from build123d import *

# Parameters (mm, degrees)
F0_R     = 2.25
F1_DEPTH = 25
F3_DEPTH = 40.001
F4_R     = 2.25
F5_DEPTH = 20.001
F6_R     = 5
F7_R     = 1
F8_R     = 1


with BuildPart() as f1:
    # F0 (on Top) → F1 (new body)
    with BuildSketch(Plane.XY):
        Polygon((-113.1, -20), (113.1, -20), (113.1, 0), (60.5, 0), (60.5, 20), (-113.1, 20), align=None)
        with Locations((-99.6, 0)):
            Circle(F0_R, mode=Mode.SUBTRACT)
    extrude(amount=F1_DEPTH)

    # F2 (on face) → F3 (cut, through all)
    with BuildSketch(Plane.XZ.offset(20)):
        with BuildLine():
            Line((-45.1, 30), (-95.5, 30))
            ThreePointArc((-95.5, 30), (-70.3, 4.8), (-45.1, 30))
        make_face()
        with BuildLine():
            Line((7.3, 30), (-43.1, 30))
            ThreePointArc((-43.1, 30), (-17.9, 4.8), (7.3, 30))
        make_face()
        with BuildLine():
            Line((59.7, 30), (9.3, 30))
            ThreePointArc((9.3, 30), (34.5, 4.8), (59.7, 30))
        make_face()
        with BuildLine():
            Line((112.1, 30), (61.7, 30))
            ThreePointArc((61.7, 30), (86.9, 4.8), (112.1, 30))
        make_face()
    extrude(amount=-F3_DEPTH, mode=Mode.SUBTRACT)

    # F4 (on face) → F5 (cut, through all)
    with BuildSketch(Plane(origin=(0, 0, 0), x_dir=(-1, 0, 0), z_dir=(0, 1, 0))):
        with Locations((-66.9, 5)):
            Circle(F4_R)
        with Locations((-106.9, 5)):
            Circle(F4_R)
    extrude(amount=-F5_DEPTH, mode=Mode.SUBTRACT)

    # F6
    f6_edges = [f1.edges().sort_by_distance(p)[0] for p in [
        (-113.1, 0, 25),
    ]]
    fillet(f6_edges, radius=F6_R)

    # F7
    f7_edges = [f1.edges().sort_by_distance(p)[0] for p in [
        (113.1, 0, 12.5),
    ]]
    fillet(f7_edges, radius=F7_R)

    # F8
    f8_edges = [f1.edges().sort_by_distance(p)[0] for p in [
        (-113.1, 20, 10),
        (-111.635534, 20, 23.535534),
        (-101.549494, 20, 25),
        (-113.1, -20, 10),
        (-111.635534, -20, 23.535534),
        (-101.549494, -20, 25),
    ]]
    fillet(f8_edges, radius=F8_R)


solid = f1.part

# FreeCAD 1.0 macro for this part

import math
import FreeCAD as App
import Part
import Sketcher


def edges_at(feature, points):
    """Names of the edges that pass closest to the given points."""
    edges = feature.Shape.Edges
    near = lambda p: min(range(len(edges)), key=lambda i: edges[i].distToShape(Part.Vertex(*p))[0])
    return sorted({f"Edge{near(p) + 1}" for p in points})

doc = App.newDocument("Part")
params = doc.addObject("Spreadsheet::Sheet", "Params")
for row, (alias, value) in enumerate([
    ("sketch1_diameter", "4.5 mm"),
    ("sketch1_height", "20 mm"),
    ("sketch1_width", "226.2 mm"),
    ("sketch1_width2", "52.6 mm"),
    ("pad1_length", "25 mm"),
    ("sketch2_radius", "25.2 mm"),
    ("sketch3_diameter", "4.5 mm"),
    ("fillet_radius", "5 mm"),
    ("fillet2_radius", "1 mm"),
    ("fillet3_radius", "1 mm"),
], start=1):
    params.set(f"A{row}", alias)
    params.set(f"B{row}", "=" + value)
    params.setAlias(f"B{row}", alias)

body = doc.addObject("PartDesign::Body", "Body")

# Sketch on XY plane
sketch1 = doc.addObject("Sketcher::SketchObject", "Sketch")
body.addObject(sketch1)
sketch1.AttachmentSupport = (doc.XY_Plane, [""])
sketch1.MapMode = "FlatFace"
sketch1.addGeometry([
    Part.LineSegment(App.Vector(-113.1, -20, 0), App.Vector(113.1, -20, 0)),  # 0
    Part.LineSegment(App.Vector(113.1, -20, 0), App.Vector(113.1, 0, 0)),  # 1
    Part.LineSegment(App.Vector(113.1, 0, 0), App.Vector(60.5, 0, 0)),  # 2
    Part.LineSegment(App.Vector(60.5, 0, 0), App.Vector(60.5, 20, 0)),  # 3
    Part.LineSegment(App.Vector(60.5, 20, 0), App.Vector(-113.1, 20, 0)),  # 4
    Part.LineSegment(App.Vector(-113.1, 20, 0), App.Vector(-113.1, -20, 0)),  # 5
    Part.Circle(App.Vector(-99.6, 0, 0), App.Vector(0, 0, 1), 2.25),  # 6
], False)
sketch1.addConstraint([
    Sketcher.Constraint("Coincident", 0, 2, 1, 1),
    Sketcher.Constraint("Coincident", 1, 2, 2, 1),
    Sketcher.Constraint("Coincident", 2, 2, 3, 1),
    Sketcher.Constraint("Coincident", 3, 2, 4, 1),
    Sketcher.Constraint("Coincident", 4, 2, 5, 1),
    Sketcher.Constraint("Coincident", 5, 2, 0, 1),
    Sketcher.Constraint("Horizontal", 0),
    Sketcher.Constraint("Vertical", 1),
    Sketcher.Constraint("Horizontal", 2),
    Sketcher.Constraint("Vertical", 3),
    Sketcher.Constraint("Horizontal", 4),
    Sketcher.Constraint("Vertical", 5),
    Sketcher.Constraint("Symmetric", 0, 2, 4, 2, -1, 1),
    Sketcher.Constraint("PointOnObject", 6, 3, -1),
    Sketcher.Constraint("PointOnObject", 1, 2, -1),
    Sketcher.Constraint("Diameter", 6, 4.5),
    Sketcher.Constraint("DistanceY", 1, 1, 1, 2, 20.0),
    Sketcher.Constraint("DistanceX", 0, 1, 0, 2, 226.2),
    Sketcher.Constraint("DistanceX", 2, 2, 2, 1, 52.6),
    Sketcher.Constraint("DistanceX", 6, 3, -1, 1, 99.6),
])
sketch1.setExpression("Constraints[15]", "Params.sketch1_diameter")
sketch1.setExpression("Constraints[16]", "Params.sketch1_height")
sketch1.setExpression("Constraints[17]", "Params.sketch1_width")
sketch1.setExpression("Constraints[18]", "Params.sketch1_width2")
pad1 = doc.addObject("PartDesign::Pad", "Pad")
body.addObject(pad1)
pad1.Profile = sketch1
pad1.setExpression("Length", "Params.pad1_length")

# Sketch on XZ plane
sketch2 = doc.addObject("Sketcher::SketchObject", "Sketch001")
body.addObject(sketch2)
sketch2.AttachmentSupport = (doc.XZ_Plane, [""])
sketch2.MapMode = "FlatFace"
sketch2.AttachmentOffset = App.Placement(App.Vector(0, 0, 20), App.Rotation())
sketch2.addGeometry([
    Part.LineSegment(App.Vector(-45.1, 30, 0), App.Vector(-95.5, 30, 0)),  # 0
    Part.ArcOfCircle(Part.Circle(App.Vector(-70.3, 30, 0), App.Vector(0, 0, 1), 25.2), math.radians(180), math.radians(360)),  # 1
    Part.LineSegment(App.Vector(7.3, 30, 0), App.Vector(-43.1, 30, 0)),  # 2
    Part.ArcOfCircle(Part.Circle(App.Vector(-17.9, 30, 0), App.Vector(0, 0, 1), 25.2), math.radians(180), math.radians(360)),  # 3
    Part.LineSegment(App.Vector(59.7, 30, 0), App.Vector(9.3, 30, 0)),  # 4
    Part.ArcOfCircle(Part.Circle(App.Vector(34.5, 30, 0), App.Vector(0, 0, 1), 25.2), math.radians(180), math.radians(360)),  # 5
    Part.LineSegment(App.Vector(112.1, 30, 0), App.Vector(61.7, 30, 0)),  # 6
    Part.ArcOfCircle(Part.Circle(App.Vector(86.9, 30, 0), App.Vector(0, 0, 1), 25.2), math.radians(180), math.radians(360)),  # 7
], False)
sketch2.addConstraint([
    Sketcher.Constraint("Coincident", 0, 1, 1, 2),
    Sketcher.Constraint("Coincident", 1, 1, 0, 2),
    Sketcher.Constraint("Coincident", 2, 1, 3, 2),
    Sketcher.Constraint("Coincident", 3, 1, 2, 2),
    Sketcher.Constraint("Coincident", 4, 1, 5, 2),
    Sketcher.Constraint("Coincident", 5, 1, 4, 2),
    Sketcher.Constraint("Coincident", 6, 1, 7, 2),
    Sketcher.Constraint("Coincident", 7, 1, 6, 2),
    Sketcher.Constraint("Horizontal", 0),
    Sketcher.Constraint("Horizontal", 2),
    Sketcher.Constraint("Horizontal", 4),
    Sketcher.Constraint("Horizontal", 6),
    Sketcher.Constraint("Equal", 1, 3),
    Sketcher.Constraint("Equal", 3, 5),
    Sketcher.Constraint("Equal", 5, 7),
    Sketcher.Constraint("Horizontal", 1, 3, 3, 3),
    Sketcher.Constraint("Horizontal", 3, 3, 5, 3),
    Sketcher.Constraint("Horizontal", 5, 3, 7, 3),
    Sketcher.Constraint("Horizontal", 7, 3, 0, 1),
    Sketcher.Constraint("Horizontal", 1, 1, 2, 1),
    Sketcher.Constraint("Horizontal", 3, 1, 4, 1),
    Sketcher.Constraint("Horizontal", 5, 1, 6, 1),
    Sketcher.Constraint("Radius", 1, 25.2),
    Sketcher.Constraint("DistanceY", -1, 1, 1, 3, 30.0),
    Sketcher.Constraint("DistanceX", 0, 1, 7, 3, 132.0),
    Sketcher.Constraint("DistanceX", 1, 1, 5, 3, 130.0),
    Sketcher.Constraint("DistanceX", 0, 1, 3, 1, 2.0),
    Sketcher.Constraint("DistanceX", 1, 3, -1, 1, 70.3),
])
sketch2.setExpression("Constraints[22]", "Params.sketch2_radius")
pocket1 = doc.addObject("PartDesign::Pocket", "Pocket")
body.addObject(pocket1)
pocket1.Profile = sketch2
pocket1.Type = "ThroughAll"

# Sketch on XZ plane
sketch3 = doc.addObject("Sketcher::SketchObject", "Sketch002")
body.addObject(sketch3)
sketch3.AttachmentSupport = (doc.XZ_Plane, [""])
sketch3.MapMode = "FlatFace"
sketch3.addGeometry([
    Part.Circle(App.Vector(66.9, 5, 0), App.Vector(0, 0, 1), 2.25),
    Part.Circle(App.Vector(106.9, 5, 0), App.Vector(0, 0, 1), 2.25),
], False)
sketch3.addConstraint([
    Sketcher.Constraint("Equal", 0, 1),
    Sketcher.Constraint("Horizontal", 0, 3, 1, 3),
    Sketcher.Constraint("Diameter", 0, 4.5),
    Sketcher.Constraint("DistanceY", -1, 1, 0, 3, 5.0),
    Sketcher.Constraint("DistanceX", 0, 3, 1, 3, 40.0),
    Sketcher.Constraint("DistanceX", -1, 1, 0, 3, 66.9),
])
sketch3.setExpression("Constraints[2]", "Params.sketch3_diameter")
pocket2 = doc.addObject("PartDesign::Pocket", "Pocket001")
body.addObject(pocket2)
pocket2.Profile = sketch3
pocket2.Type = "ThroughAll"
pocket2.Reversed = True
doc.recompute()

fillet = doc.addObject("PartDesign::Fillet", "Fillet")
body.addObject(fillet)
fillet.Base = (pocket2, edges_at(pocket2, [(-113.1, 0, 25)]))
fillet.setExpression("Radius", "Params.fillet_radius")
doc.recompute()

fillet2 = doc.addObject("PartDesign::Fillet", "Fillet001")
body.addObject(fillet2)
fillet2.Base = (fillet, edges_at(fillet, [(113.1, 0, 12.5)]))
fillet2.setExpression("Radius", "Params.fillet2_radius")
doc.recompute()

fillet3 = doc.addObject("PartDesign::Fillet", "Fillet002")
body.addObject(fillet3)
fillet3.Base = (fillet2, edges_at(fillet2, [
    (-113.1, 20, 10),
    (-111.636, 20, 23.536),
    (-101.549, 20, 25),
    (-113.1, -20, 10),
    (-111.636, -20, 23.536),
    (-101.549, -20, 25),
]))
fillet3.setExpression("Radius", "Params.fillet3_radius")

doc.recompute()
